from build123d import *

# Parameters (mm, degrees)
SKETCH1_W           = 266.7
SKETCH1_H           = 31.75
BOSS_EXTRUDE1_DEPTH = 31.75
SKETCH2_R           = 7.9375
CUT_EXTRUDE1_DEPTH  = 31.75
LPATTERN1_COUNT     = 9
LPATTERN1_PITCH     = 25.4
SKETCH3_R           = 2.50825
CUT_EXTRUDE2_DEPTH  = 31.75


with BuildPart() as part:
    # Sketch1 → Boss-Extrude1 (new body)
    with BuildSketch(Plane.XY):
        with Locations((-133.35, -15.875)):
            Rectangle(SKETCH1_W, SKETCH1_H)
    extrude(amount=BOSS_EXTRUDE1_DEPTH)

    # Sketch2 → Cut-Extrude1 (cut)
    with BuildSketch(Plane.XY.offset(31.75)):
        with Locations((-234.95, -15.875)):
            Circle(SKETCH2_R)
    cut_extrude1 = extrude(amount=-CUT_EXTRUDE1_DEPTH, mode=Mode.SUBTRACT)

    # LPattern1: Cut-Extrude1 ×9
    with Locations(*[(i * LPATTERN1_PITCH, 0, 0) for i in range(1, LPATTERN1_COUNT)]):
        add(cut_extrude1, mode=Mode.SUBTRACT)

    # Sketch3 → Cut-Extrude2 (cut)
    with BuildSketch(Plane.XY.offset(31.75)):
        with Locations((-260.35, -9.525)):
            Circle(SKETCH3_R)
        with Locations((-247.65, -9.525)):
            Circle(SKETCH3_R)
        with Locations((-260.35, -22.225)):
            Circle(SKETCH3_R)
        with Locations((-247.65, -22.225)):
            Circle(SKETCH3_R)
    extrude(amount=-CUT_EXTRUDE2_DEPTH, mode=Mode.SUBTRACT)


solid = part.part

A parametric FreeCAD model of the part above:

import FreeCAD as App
import Part
import Sketcher
Q = App.Units.Quantity


def add_polygon(sketch, points):
    """Adds a closed chain of lines whose ends are joined by coincident constraints."""
    first, n = sketch.GeometryCount, len(points)
    for a, b in zip(points, points[1:] + points[:1]):
        sketch.addGeometry(Part.LineSegment(App.Vector(*a, 0), App.Vector(*b, 0)), False)
    for i in range(n):
        sketch.addConstraint(Sketcher.Constraint("Coincident", first + i, 2, first + (i + 1) % n, 1))

doc = App.newDocument("Part")
body = doc.addObject("PartDesign::Body", "Body")

# Sketch on XY plane
sketch1 = doc.addObject("Sketcher::SketchObject", "Sketch")
body.addObject(sketch1)
sketch1.AttachmentSupport = (doc.XY_Plane, [""])
sketch1.MapMode = "FlatFace"
add_polygon(sketch1, [(-267, 0), (-267, -32), (0, -32), (0, 0)])  # lines 0-3
sketch1.addConstraint([
    Sketcher.Constraint("Vertical", 0),
    Sketcher.Constraint("Horizontal", 1),
    Sketcher.Constraint("Vertical", 2),
    Sketcher.Constraint("Horizontal", 3),
    Sketcher.Constraint("Coincident", 2, 2, -1, 1),
    Sketcher.Constraint("DistanceX", 1, 1, 1, 2, Q("10.5 in")),
    Sketcher.Constraint("DistanceY", 0, 2, 0, 1, Q("1.25 in")),
])
pad1 = doc.addObject("PartDesign::Pad", "Pad")
body.addObject(pad1)
pad1.Profile = sketch1
pad1.Length = Q("1.25 in")

# Sketch on XY plane
sketch2 = doc.addObject("Sketcher::SketchObject", "Sketch001")
body.addObject(sketch2)
sketch2.AttachmentSupport = (doc.XY_Plane, [""])
sketch2.MapMode = "FlatFace"
sketch2.AttachmentOffset = App.Placement(App.Vector(0, 0, 1.25 * 25.4), App.Rotation())
sketch2.addGeometry(Part.Circle(App.Vector(-235, -16, 0), App.Vector(0, 0, 1), 8), False)
sketch2.addConstraint([
    Sketcher.Constraint("Diameter", 0, Q("0.625 in")),
    Sketcher.Constraint("DistanceX", 0, 3, -1, 1, Q("9.25 in")),
    Sketcher.Constraint("DistanceY", 0, 3, -1, 1, Q("0.625 in")),
])
pocket1 = doc.addObject("PartDesign::Pocket", "Pocket")
body.addObject(pocket1)
pocket1.Profile = sketch2
pocket1.Length = Q("1.25 in")
doc.recompute()

linearpattern = doc.addObject("PartDesign::LinearPattern", "LinearPattern")
body.addObject(linearpattern)
linearpattern.Originals = [pocket1]
linearpattern.Direction = (doc.X_Axis, [""])
linearpattern.Mode = "offset"
linearpattern.Offset = Q("1 in")
linearpattern.Occurrences = 9
body.Tip = linearpattern

# Sketch on XY plane
sketch3 = doc.addObject("Sketcher::SketchObject", "Sketch002")
body.addObject(sketch3)
sketch3.AttachmentSupport = (doc.XY_Plane, [""])
sketch3.MapMode = "FlatFace"
sketch3.AttachmentOffset = App.Placement(App.Vector(0, 0, 1.25 * 25.4), App.Rotation())
sketch3.addGeometry([
    Part.Circle(App.Vector(-260.4, -9.5, 0), App.Vector(0, 0, 1), 2.5),
    Part.Circle(App.Vector(-247.7, -9.5, 0), App.Vector(0, 0, 1), 2.5),
    Part.Circle(App.Vector(-260.4, -22.2, 0), App.Vector(0, 0, 1), 2.5),
    Part.Circle(App.Vector(-247.7, -22.2, 0), App.Vector(0, 0, 1), 2.5),
], False)
sketch3.addConstraint([
    Sketcher.Constraint("Equal", 0, 1),
    Sketcher.Constraint("Equal", 1, 2),
    Sketcher.Constraint("Equal", 2, 3),
    Sketcher.Constraint("Horizontal", 0, 3, 1, 3),
    Sketcher.Constraint("Horizontal", 2, 3, 3, 3),
    Sketcher.Constraint("Vertical", 0, 3, 2, 3),
    Sketcher.Constraint("Vertical", 1, 3, 3, 3),
    Sketcher.Constraint("Diameter", 0, Q("0.1975 in")),
    Sketcher.Constraint("DistanceX", 0, 3, 1, 3, Q("0.5 in")),
    Sketcher.Constraint("DistanceY", 2, 3, 0, 3, Q("0.5 in")),
    Sketcher.Constraint("DistanceX", 0, 3, -1, 1, Q("10.25 in")),
    Sketcher.Constraint("DistanceY", 0, 3, -1, 1, Q("0.375 in")),
])
pocket2 = doc.addObject("PartDesign::Pocket", "Pocket001")
body.addObject(pocket2)
pocket2.Profile = sketch3
pocket2.Length = Q("1.25 in")

doc.recompute()
